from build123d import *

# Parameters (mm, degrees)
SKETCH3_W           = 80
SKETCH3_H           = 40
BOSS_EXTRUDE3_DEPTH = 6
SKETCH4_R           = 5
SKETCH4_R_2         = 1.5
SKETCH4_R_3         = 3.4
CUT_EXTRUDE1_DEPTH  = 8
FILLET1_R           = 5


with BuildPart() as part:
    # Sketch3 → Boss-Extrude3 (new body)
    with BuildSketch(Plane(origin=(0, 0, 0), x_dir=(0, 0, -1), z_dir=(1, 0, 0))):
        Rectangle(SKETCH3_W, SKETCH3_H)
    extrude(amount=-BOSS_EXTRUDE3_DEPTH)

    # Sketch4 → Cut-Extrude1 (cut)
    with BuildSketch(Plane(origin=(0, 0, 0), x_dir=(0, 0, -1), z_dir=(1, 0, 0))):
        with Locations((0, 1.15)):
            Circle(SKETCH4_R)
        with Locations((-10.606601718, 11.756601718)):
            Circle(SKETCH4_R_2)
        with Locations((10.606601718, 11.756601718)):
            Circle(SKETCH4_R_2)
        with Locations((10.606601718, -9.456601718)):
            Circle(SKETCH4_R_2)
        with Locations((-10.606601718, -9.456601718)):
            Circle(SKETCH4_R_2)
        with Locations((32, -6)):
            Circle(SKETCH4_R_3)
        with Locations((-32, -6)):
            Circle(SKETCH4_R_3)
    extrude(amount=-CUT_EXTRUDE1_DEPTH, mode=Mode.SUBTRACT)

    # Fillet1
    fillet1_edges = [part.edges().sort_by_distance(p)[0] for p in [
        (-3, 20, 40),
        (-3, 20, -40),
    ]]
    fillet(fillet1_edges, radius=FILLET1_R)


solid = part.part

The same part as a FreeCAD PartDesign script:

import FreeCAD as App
import Part
import Sketcher


def edges_at(feature, points):
    """Names of the edges that pass closest to the given points."""
    edges = feature.Shape.Edges
    near = lambda p: min(range(len(edges)), key=lambda i: edges[i].distToShape(Part.Vertex(*p))[0])
    return sorted({f"Edge{near(p) + 1}" for p in points})

doc = App.newDocument("Part")
params = doc.addObject("Spreadsheet::Sheet", "Params")
for row, (alias, value) in enumerate([
    ("sketch1_width", "40 mm"),
    ("sketch1_height", "80 mm"),
    ("pad1_length", "6 mm"),
    ("sketch2_diameter", "10 mm"),
    ("sketch2_diameter2", "3 mm"),
    ("sketch2_diameter3", "6.8 mm"),
    ("pocket1_length", "8 mm"),
    ("fillet_radius", "5 mm"),
], start=1):
    params.set(f"A{row}", alias)
    params.set(f"B{row}", "=" + value)
    params.setAlias(f"B{row}", alias)

body = doc.addObject("PartDesign::Body", "Body")

sketch1 = body.newObject("Sketcher::SketchObject", "Sketch")
sketch1.AttachmentSupport = (doc.getObject("YZ_Plane"), [""])
sketch1.MapMode = "FlatFace"
sketch1.addGeometry([
    Part.LineSegment(App.Vector(20, 40, 0), App.Vector(-20, 40, 0)),
    Part.LineSegment(App.Vector(-20, 40, 0), App.Vector(-20, -40, 0)),
    Part.LineSegment(App.Vector(-20, -40, 0), App.Vector(20, -40, 0)),
    Part.LineSegment(App.Vector(20, -40, 0), App.Vector(20, 40, 0)),
], False)
sketch1.addConstraint([
    Sketcher.Constraint("Coincident", 0, 2, 1, 1),
    Sketcher.Constraint("Coincident", 1, 2, 2, 1),
    Sketcher.Constraint("Coincident", 2, 2, 3, 1),
    Sketcher.Constraint("Coincident", 3, 2, 0, 1),
    Sketcher.Constraint("Horizontal", 0),
    Sketcher.Constraint("Vertical", 1),
    Sketcher.Constraint("Horizontal", 2),
    Sketcher.Constraint("Vertical", 3),
    Sketcher.Constraint("Symmetric", 0, 2, 2, 2, -1, 1),
    Sketcher.Constraint("DistanceX", 0, 2, 0, 1, 40.0),
    Sketcher.Constraint("DistanceY", 1, 2, 1, 1, 80.0),
])
sketch1.setExpression("Constraints[9]", "Params.sketch1_width")
sketch1.setExpression("Constraints[10]", "Params.sketch1_height")
pad1 = body.newObject("PartDesign::Pad", "Pad")
pad1.Profile = sketch1
pad1.setExpression("Length", "Params.pad1_length")
pad1.Reversed = True

sketch2 = body.newObject("Sketcher::SketchObject", "Sketch001")
sketch2.AttachmentSupport = (doc.getObject("YZ_Plane"), [""])
sketch2.MapMode = "FlatFace"
sketch2.addGeometry([
    Part.Circle(App.Vector(1.1, 0, 0), App.Vector(0, 0, 1), 5),
    Part.Circle(App.Vector(11.8, 10.6, 0), App.Vector(0, 0, 1), 1.5),
    Part.Circle(App.Vector(11.8, -10.6, 0), App.Vector(0, 0, 1), 1.5),
    Part.Circle(App.Vector(-9.5, -10.6, 0), App.Vector(0, 0, 1), 1.5),
    Part.Circle(App.Vector(-9.5, 10.6, 0), App.Vector(0, 0, 1), 1.5),
    Part.Circle(App.Vector(-6, -32, 0), App.Vector(0, 0, 1), 3.4),
    Part.Circle(App.Vector(-6, 32, 0), App.Vector(0, 0, 1), 3.4),
], False)
sketch2.addConstraint([
    Sketcher.Constraint("Equal", 1, 2),
    Sketcher.Constraint("Equal", 2, 3),
    Sketcher.Constraint("Equal", 3, 4),
    Sketcher.Constraint("Equal", 5, 6),
    Sketcher.Constraint("Symmetric", 1, 3, 2, 3, -1),
    Sketcher.Constraint("Symmetric", 3, 3, 4, 3, -1),
    Sketcher.Constraint("Symmetric", 5, 3, 6, 3, -1),
    Sketcher.Constraint("PointOnObject", 0, 3, -1),
    Sketcher.Constraint("Horizontal", 2, 3, 3, 3),
    Sketcher.Constraint("Diameter", 0, 10.0),
    Sketcher.Constraint("Diameter", 1, 3.0),
    Sketcher.Constraint("Diameter", 5, 6.8),
    Sketcher.Constraint("DistanceX", 5, 3, -1, 1, 6.0),
    Sketcher.Constraint("DistanceY", 5, 3, -1, 1, 32.0),
    Sketcher.Constraint("DistanceX", -1, 1, 0, 3, 1.15),
    Sketcher.Constraint("DistanceX", -1, 1, 1, 3, 11.756602),
    Sketcher.Constraint("DistanceY", -1, 1, 1, 3, 10.606602),
    Sketcher.Constraint("DistanceX", 3, 3, -1, 1, 9.456602),
])
sketch2.setExpression("Constraints[9]", "Params.sketch2_diameter")
sketch2.setExpression("Constraints[10]", "Params.sketch2_diameter2")
sketch2.setExpression("Constraints[11]", "Params.sketch2_diameter3")
pocket1 = body.newObject("PartDesign::Pocket", "Pocket")
pocket1.Profile = sketch2
pocket1.setExpression("Length", "Params.pocket1_length")
doc.recompute()

fillet = body.newObject("PartDesign::Fillet", "Fillet")
fillet.Base = (pocket1, edges_at(pocket1, [(-3, 20, 40), (-3, 20, -40)]))
fillet.setExpression("Radius", "Params.fillet_radius")

doc.recompute()
